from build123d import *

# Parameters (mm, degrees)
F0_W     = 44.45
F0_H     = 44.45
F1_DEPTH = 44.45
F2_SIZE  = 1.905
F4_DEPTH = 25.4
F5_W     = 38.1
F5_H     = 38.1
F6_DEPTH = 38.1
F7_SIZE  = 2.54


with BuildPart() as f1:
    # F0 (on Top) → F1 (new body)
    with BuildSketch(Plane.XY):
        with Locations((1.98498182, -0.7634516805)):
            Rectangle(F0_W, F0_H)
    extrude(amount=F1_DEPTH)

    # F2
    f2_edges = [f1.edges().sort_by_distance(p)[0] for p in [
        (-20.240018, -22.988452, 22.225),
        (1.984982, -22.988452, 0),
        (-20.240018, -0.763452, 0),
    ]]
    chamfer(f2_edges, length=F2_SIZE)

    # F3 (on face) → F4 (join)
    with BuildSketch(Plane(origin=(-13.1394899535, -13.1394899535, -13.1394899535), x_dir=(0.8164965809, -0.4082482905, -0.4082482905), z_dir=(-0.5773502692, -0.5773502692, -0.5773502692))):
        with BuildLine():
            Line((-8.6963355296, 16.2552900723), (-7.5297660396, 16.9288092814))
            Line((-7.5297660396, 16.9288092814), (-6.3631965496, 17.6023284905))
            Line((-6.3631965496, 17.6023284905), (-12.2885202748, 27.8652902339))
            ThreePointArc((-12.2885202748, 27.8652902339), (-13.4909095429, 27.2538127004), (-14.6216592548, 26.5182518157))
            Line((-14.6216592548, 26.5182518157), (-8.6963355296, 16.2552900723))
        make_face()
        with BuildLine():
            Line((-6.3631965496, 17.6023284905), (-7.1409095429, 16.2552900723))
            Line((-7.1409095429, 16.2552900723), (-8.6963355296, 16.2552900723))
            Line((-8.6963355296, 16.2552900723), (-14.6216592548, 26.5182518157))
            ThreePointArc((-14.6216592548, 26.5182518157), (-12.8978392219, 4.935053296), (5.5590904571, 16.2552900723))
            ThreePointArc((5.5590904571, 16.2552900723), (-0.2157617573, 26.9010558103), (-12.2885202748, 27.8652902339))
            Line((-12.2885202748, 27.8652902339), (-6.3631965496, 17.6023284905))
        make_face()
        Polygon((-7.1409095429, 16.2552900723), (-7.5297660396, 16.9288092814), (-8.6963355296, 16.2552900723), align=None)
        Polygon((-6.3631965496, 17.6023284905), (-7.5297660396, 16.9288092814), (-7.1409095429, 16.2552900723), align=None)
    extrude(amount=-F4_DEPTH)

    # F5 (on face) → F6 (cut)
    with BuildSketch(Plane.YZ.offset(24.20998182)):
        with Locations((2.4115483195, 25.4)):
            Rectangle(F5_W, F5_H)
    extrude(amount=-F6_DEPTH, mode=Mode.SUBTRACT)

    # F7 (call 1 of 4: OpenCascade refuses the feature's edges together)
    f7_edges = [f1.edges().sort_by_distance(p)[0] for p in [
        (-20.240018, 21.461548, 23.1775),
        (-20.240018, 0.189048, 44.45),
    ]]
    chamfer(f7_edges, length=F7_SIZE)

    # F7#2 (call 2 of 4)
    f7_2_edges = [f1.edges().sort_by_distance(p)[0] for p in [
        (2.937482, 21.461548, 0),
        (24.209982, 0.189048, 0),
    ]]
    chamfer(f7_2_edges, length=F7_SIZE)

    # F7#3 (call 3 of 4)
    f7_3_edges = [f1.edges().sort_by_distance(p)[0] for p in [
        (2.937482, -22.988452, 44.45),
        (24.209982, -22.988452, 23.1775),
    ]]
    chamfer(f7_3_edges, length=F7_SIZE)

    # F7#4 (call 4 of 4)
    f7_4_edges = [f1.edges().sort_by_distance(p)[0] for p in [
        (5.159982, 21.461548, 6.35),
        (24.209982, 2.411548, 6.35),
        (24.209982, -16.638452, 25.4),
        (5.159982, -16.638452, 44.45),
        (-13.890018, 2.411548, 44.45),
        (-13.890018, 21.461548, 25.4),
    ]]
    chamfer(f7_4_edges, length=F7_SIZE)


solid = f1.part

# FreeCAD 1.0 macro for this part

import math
import FreeCAD as App
import Part
import Sketcher
Q = App.Units.Quantity


def edges_at(feature, points):
    """Names of the edges that pass closest to the given points."""
    edges = feature.Shape.Edges
    near = lambda p: min(range(len(edges)), key=lambda i: edges[i].distToShape(Part.Vertex(*p))[0])
    return sorted({f"Edge{near(p) + 1}" for p in points})


def add_polygon(sketch, points):
    """Adds a closed chain of lines whose ends are joined by coincident constraints."""
    first, n = sketch.GeometryCount, len(points)
    for a, b in zip(points, points[1:] + points[:1]):
        sketch.addGeometry(Part.LineSegment(App.Vector(*a, 0), App.Vector(*b, 0)), False)
    for i in range(n):
        sketch.addConstraint(Sketcher.Constraint("Coincident", first + i, 2, first + (i + 1) % n, 1))

doc = App.newDocument("Part")
body = doc.addObject("PartDesign::Body", "Body")

sketch1 = body.newObject("Sketcher::SketchObject", "Sketch")
sketch1.AttachmentSupport = (doc.getObject("XY_Plane"), [""])
sketch1.MapMode = "FlatFace"
add_polygon(sketch1, [(-20, 21), (-20, -23), (24, -23), (24, 21)])
sketch1.addConstraint(Sketcher.Constraint("Vertical", 0))
sketch1.addConstraint(Sketcher.Constraint("Horizontal", 1))
sketch1.addConstraint(Sketcher.Constraint("Vertical", 2))
sketch1.addConstraint(Sketcher.Constraint("Horizontal", 3))
sketch1.addConstraint(Sketcher.Constraint("Equal", 3, 0))
sketch1.addConstraint(Sketcher.Constraint("DistanceX", 1, 1, 1, 2, Q("1.75 in")))
sketch1.addConstraint(Sketcher.Constraint("DistanceX", 0, 2, -1, 1, 20.240018))
sketch1.addConstraint(Sketcher.Constraint("DistanceY", 0, 2, -1, 1, 22.988452))
pad1 = body.newObject("PartDesign::Pad", "Pad")
pad1.Profile = sketch1
pad1.Length = Q("1.75 in")
doc.recompute()

chamfer = body.newObject("PartDesign::Chamfer", "Chamfer")
chamfer.Base = (pad1, edges_at(pad1, [(-20.24, -22.988, 22.225), (1.985, -22.988, 0), (-20.24, -0.763, 0)]))
chamfer.Size = Q("0.075 in")

sketch2 = body.newObject("Sketcher::SketchObject", "Sketch001")
sketch2.Placement = App.Placement(App.Vector(-13.13949, -13.13949, -13.13949), App.Rotation(App.Vector(0.816496581, -0.40824829, -0.40824829), App.Vector(0, -0.707106781, 0.707106781), App.Vector(-0.577350269, -0.577350269, -0.577350269), "ZXY"))
sketch2.addGeometry(Part.ArcOfCircle(Part.Circle(App.Vector(-7.1, 16.3, 0), App.Vector(0, 0, 1), 12.7), math.radians(113.91), math.radians(126.09)), False)
sketch2.addGeometry(Part.ArcOfCircle(Part.Circle(App.Vector(-7.1, 16.3, 0), App.Vector(0, 0, 1), 12.7), math.radians(126), math.radians(360)), False)
sketch2.addGeometry(Part.ArcOfCircle(Part.Circle(App.Vector(-7.1, 16.3, 0), App.Vector(0, 0, 1), 12.7), math.radians(0), math.radians(114)), False)
sketch2.addConstraint(Sketcher.Constraint("Tangent", 0, 2, 1, 1))
sketch2.addConstraint(Sketcher.Constraint("Tangent", 1, 2, 2, 1))
sketch2.addConstraint(Sketcher.Constraint("Tangent", 2, 2, 0, 1))
sketch2.addConstraint(Sketcher.Constraint("Horizontal", 2, 3, 1, 2))
sketch2.addConstraint(Sketcher.Constraint("Radius", 0, Q("0.5 in")))
sketch2.addConstraint(Sketcher.Constraint("DistanceX", 2, 2, -1, 1, Q("0.4838 in")))
sketch2.addConstraint(Sketcher.Constraint("DistanceY", 0, 3, 2, 2, 11.61))
sketch2.addConstraint(Sketcher.Constraint("DistanceY", -1, 1, 0, 3, 16.25529))
sketch2.addConstraint(Sketcher.Constraint("DistanceX", 0, 2, -1, 1, 14.621659))
pad2 = body.newObject("PartDesign::Pad", "Pad001")
pad2.Profile = sketch2
pad2.Length = Q("1 in")
pad2.Reversed = True

sketch3 = body.newObject("Sketcher::SketchObject", "Sketch002")
sketch3.AttachmentSupport = (doc.getObject("YZ_Plane"), [""])
sketch3.MapMode = "FlatFace"
sketch3.AttachmentOffset = App.Placement(App.Vector(0, 0, 24.209982), App.Rotation())
add_polygon(sketch3, [(-17, 44), (-17, 6), (21, 6), (21, 44)])
sketch3.addConstraint(Sketcher.Constraint("Vertical", 0))
sketch3.addConstraint(Sketcher.Constraint("Horizontal", 1))
sketch3.addConstraint(Sketcher.Constraint("Vertical", 2))
sketch3.addConstraint(Sketcher.Constraint("Horizontal", 3))
sketch3.addConstraint(Sketcher.Constraint("Equal", 3, 0))
sketch3.addConstraint(Sketcher.Constraint("DistanceX", 1, 1, 1, 2, Q("1.5 in")))
sketch3.addConstraint(Sketcher.Constraint("DistanceY", -1, 1, 0, 2, Q("0.25 in")))
sketch3.addConstraint(Sketcher.Constraint("DistanceX", 0, 2, -1, 1, 16.638452))
pocket1 = body.newObject("PartDesign::Pocket", "Pocket")
pocket1.Profile = sketch3
pocket1.Length = Q("1.5 in")
doc.recompute()

chamfer2 = body.newObject("PartDesign::Chamfer", "Chamfer001")
chamfer2.Base = (pocket1, edges_at(pocket1, [(-20.24, 21.462, 23.177), (-20.24, 0.189, 44.45)]))
chamfer2.Size = Q("0.1 in")
doc.recompute()

chamfer3 = body.newObject("PartDesign::Chamfer", "Chamfer002")
chamfer3.Base = (chamfer2, edges_at(chamfer2, [(3.255, 21.462, 0), (24.21, 0.189, 0)]))
chamfer3.Size = Q("0.1 in")
doc.recompute()

chamfer4 = body.newObject("PartDesign::Chamfer", "Chamfer003")
chamfer4.Base = (chamfer3, edges_at(chamfer3, [(3.255, -22.988, 44.45), (24.21, -22.988, 23.495)]))
chamfer4.Size = Q("0.1 in")
doc.recompute()

chamfer5 = body.newObject("PartDesign::Chamfer", "Chamfer004")
chamfer5.Base = (chamfer4, edges_at(chamfer4, [
    (5.16, 21.462, 6.35),
    (24.21, 2.412, 6.35),
    (24.21, -16.638, 25.4),
    (5.16, -16.638, 44.45),
    (-13.89, 2.412, 44.45),
    (-13.89, 21.462, 25.4),
]))
chamfer5.Size = Q("0.1 in")

doc.recompute()
